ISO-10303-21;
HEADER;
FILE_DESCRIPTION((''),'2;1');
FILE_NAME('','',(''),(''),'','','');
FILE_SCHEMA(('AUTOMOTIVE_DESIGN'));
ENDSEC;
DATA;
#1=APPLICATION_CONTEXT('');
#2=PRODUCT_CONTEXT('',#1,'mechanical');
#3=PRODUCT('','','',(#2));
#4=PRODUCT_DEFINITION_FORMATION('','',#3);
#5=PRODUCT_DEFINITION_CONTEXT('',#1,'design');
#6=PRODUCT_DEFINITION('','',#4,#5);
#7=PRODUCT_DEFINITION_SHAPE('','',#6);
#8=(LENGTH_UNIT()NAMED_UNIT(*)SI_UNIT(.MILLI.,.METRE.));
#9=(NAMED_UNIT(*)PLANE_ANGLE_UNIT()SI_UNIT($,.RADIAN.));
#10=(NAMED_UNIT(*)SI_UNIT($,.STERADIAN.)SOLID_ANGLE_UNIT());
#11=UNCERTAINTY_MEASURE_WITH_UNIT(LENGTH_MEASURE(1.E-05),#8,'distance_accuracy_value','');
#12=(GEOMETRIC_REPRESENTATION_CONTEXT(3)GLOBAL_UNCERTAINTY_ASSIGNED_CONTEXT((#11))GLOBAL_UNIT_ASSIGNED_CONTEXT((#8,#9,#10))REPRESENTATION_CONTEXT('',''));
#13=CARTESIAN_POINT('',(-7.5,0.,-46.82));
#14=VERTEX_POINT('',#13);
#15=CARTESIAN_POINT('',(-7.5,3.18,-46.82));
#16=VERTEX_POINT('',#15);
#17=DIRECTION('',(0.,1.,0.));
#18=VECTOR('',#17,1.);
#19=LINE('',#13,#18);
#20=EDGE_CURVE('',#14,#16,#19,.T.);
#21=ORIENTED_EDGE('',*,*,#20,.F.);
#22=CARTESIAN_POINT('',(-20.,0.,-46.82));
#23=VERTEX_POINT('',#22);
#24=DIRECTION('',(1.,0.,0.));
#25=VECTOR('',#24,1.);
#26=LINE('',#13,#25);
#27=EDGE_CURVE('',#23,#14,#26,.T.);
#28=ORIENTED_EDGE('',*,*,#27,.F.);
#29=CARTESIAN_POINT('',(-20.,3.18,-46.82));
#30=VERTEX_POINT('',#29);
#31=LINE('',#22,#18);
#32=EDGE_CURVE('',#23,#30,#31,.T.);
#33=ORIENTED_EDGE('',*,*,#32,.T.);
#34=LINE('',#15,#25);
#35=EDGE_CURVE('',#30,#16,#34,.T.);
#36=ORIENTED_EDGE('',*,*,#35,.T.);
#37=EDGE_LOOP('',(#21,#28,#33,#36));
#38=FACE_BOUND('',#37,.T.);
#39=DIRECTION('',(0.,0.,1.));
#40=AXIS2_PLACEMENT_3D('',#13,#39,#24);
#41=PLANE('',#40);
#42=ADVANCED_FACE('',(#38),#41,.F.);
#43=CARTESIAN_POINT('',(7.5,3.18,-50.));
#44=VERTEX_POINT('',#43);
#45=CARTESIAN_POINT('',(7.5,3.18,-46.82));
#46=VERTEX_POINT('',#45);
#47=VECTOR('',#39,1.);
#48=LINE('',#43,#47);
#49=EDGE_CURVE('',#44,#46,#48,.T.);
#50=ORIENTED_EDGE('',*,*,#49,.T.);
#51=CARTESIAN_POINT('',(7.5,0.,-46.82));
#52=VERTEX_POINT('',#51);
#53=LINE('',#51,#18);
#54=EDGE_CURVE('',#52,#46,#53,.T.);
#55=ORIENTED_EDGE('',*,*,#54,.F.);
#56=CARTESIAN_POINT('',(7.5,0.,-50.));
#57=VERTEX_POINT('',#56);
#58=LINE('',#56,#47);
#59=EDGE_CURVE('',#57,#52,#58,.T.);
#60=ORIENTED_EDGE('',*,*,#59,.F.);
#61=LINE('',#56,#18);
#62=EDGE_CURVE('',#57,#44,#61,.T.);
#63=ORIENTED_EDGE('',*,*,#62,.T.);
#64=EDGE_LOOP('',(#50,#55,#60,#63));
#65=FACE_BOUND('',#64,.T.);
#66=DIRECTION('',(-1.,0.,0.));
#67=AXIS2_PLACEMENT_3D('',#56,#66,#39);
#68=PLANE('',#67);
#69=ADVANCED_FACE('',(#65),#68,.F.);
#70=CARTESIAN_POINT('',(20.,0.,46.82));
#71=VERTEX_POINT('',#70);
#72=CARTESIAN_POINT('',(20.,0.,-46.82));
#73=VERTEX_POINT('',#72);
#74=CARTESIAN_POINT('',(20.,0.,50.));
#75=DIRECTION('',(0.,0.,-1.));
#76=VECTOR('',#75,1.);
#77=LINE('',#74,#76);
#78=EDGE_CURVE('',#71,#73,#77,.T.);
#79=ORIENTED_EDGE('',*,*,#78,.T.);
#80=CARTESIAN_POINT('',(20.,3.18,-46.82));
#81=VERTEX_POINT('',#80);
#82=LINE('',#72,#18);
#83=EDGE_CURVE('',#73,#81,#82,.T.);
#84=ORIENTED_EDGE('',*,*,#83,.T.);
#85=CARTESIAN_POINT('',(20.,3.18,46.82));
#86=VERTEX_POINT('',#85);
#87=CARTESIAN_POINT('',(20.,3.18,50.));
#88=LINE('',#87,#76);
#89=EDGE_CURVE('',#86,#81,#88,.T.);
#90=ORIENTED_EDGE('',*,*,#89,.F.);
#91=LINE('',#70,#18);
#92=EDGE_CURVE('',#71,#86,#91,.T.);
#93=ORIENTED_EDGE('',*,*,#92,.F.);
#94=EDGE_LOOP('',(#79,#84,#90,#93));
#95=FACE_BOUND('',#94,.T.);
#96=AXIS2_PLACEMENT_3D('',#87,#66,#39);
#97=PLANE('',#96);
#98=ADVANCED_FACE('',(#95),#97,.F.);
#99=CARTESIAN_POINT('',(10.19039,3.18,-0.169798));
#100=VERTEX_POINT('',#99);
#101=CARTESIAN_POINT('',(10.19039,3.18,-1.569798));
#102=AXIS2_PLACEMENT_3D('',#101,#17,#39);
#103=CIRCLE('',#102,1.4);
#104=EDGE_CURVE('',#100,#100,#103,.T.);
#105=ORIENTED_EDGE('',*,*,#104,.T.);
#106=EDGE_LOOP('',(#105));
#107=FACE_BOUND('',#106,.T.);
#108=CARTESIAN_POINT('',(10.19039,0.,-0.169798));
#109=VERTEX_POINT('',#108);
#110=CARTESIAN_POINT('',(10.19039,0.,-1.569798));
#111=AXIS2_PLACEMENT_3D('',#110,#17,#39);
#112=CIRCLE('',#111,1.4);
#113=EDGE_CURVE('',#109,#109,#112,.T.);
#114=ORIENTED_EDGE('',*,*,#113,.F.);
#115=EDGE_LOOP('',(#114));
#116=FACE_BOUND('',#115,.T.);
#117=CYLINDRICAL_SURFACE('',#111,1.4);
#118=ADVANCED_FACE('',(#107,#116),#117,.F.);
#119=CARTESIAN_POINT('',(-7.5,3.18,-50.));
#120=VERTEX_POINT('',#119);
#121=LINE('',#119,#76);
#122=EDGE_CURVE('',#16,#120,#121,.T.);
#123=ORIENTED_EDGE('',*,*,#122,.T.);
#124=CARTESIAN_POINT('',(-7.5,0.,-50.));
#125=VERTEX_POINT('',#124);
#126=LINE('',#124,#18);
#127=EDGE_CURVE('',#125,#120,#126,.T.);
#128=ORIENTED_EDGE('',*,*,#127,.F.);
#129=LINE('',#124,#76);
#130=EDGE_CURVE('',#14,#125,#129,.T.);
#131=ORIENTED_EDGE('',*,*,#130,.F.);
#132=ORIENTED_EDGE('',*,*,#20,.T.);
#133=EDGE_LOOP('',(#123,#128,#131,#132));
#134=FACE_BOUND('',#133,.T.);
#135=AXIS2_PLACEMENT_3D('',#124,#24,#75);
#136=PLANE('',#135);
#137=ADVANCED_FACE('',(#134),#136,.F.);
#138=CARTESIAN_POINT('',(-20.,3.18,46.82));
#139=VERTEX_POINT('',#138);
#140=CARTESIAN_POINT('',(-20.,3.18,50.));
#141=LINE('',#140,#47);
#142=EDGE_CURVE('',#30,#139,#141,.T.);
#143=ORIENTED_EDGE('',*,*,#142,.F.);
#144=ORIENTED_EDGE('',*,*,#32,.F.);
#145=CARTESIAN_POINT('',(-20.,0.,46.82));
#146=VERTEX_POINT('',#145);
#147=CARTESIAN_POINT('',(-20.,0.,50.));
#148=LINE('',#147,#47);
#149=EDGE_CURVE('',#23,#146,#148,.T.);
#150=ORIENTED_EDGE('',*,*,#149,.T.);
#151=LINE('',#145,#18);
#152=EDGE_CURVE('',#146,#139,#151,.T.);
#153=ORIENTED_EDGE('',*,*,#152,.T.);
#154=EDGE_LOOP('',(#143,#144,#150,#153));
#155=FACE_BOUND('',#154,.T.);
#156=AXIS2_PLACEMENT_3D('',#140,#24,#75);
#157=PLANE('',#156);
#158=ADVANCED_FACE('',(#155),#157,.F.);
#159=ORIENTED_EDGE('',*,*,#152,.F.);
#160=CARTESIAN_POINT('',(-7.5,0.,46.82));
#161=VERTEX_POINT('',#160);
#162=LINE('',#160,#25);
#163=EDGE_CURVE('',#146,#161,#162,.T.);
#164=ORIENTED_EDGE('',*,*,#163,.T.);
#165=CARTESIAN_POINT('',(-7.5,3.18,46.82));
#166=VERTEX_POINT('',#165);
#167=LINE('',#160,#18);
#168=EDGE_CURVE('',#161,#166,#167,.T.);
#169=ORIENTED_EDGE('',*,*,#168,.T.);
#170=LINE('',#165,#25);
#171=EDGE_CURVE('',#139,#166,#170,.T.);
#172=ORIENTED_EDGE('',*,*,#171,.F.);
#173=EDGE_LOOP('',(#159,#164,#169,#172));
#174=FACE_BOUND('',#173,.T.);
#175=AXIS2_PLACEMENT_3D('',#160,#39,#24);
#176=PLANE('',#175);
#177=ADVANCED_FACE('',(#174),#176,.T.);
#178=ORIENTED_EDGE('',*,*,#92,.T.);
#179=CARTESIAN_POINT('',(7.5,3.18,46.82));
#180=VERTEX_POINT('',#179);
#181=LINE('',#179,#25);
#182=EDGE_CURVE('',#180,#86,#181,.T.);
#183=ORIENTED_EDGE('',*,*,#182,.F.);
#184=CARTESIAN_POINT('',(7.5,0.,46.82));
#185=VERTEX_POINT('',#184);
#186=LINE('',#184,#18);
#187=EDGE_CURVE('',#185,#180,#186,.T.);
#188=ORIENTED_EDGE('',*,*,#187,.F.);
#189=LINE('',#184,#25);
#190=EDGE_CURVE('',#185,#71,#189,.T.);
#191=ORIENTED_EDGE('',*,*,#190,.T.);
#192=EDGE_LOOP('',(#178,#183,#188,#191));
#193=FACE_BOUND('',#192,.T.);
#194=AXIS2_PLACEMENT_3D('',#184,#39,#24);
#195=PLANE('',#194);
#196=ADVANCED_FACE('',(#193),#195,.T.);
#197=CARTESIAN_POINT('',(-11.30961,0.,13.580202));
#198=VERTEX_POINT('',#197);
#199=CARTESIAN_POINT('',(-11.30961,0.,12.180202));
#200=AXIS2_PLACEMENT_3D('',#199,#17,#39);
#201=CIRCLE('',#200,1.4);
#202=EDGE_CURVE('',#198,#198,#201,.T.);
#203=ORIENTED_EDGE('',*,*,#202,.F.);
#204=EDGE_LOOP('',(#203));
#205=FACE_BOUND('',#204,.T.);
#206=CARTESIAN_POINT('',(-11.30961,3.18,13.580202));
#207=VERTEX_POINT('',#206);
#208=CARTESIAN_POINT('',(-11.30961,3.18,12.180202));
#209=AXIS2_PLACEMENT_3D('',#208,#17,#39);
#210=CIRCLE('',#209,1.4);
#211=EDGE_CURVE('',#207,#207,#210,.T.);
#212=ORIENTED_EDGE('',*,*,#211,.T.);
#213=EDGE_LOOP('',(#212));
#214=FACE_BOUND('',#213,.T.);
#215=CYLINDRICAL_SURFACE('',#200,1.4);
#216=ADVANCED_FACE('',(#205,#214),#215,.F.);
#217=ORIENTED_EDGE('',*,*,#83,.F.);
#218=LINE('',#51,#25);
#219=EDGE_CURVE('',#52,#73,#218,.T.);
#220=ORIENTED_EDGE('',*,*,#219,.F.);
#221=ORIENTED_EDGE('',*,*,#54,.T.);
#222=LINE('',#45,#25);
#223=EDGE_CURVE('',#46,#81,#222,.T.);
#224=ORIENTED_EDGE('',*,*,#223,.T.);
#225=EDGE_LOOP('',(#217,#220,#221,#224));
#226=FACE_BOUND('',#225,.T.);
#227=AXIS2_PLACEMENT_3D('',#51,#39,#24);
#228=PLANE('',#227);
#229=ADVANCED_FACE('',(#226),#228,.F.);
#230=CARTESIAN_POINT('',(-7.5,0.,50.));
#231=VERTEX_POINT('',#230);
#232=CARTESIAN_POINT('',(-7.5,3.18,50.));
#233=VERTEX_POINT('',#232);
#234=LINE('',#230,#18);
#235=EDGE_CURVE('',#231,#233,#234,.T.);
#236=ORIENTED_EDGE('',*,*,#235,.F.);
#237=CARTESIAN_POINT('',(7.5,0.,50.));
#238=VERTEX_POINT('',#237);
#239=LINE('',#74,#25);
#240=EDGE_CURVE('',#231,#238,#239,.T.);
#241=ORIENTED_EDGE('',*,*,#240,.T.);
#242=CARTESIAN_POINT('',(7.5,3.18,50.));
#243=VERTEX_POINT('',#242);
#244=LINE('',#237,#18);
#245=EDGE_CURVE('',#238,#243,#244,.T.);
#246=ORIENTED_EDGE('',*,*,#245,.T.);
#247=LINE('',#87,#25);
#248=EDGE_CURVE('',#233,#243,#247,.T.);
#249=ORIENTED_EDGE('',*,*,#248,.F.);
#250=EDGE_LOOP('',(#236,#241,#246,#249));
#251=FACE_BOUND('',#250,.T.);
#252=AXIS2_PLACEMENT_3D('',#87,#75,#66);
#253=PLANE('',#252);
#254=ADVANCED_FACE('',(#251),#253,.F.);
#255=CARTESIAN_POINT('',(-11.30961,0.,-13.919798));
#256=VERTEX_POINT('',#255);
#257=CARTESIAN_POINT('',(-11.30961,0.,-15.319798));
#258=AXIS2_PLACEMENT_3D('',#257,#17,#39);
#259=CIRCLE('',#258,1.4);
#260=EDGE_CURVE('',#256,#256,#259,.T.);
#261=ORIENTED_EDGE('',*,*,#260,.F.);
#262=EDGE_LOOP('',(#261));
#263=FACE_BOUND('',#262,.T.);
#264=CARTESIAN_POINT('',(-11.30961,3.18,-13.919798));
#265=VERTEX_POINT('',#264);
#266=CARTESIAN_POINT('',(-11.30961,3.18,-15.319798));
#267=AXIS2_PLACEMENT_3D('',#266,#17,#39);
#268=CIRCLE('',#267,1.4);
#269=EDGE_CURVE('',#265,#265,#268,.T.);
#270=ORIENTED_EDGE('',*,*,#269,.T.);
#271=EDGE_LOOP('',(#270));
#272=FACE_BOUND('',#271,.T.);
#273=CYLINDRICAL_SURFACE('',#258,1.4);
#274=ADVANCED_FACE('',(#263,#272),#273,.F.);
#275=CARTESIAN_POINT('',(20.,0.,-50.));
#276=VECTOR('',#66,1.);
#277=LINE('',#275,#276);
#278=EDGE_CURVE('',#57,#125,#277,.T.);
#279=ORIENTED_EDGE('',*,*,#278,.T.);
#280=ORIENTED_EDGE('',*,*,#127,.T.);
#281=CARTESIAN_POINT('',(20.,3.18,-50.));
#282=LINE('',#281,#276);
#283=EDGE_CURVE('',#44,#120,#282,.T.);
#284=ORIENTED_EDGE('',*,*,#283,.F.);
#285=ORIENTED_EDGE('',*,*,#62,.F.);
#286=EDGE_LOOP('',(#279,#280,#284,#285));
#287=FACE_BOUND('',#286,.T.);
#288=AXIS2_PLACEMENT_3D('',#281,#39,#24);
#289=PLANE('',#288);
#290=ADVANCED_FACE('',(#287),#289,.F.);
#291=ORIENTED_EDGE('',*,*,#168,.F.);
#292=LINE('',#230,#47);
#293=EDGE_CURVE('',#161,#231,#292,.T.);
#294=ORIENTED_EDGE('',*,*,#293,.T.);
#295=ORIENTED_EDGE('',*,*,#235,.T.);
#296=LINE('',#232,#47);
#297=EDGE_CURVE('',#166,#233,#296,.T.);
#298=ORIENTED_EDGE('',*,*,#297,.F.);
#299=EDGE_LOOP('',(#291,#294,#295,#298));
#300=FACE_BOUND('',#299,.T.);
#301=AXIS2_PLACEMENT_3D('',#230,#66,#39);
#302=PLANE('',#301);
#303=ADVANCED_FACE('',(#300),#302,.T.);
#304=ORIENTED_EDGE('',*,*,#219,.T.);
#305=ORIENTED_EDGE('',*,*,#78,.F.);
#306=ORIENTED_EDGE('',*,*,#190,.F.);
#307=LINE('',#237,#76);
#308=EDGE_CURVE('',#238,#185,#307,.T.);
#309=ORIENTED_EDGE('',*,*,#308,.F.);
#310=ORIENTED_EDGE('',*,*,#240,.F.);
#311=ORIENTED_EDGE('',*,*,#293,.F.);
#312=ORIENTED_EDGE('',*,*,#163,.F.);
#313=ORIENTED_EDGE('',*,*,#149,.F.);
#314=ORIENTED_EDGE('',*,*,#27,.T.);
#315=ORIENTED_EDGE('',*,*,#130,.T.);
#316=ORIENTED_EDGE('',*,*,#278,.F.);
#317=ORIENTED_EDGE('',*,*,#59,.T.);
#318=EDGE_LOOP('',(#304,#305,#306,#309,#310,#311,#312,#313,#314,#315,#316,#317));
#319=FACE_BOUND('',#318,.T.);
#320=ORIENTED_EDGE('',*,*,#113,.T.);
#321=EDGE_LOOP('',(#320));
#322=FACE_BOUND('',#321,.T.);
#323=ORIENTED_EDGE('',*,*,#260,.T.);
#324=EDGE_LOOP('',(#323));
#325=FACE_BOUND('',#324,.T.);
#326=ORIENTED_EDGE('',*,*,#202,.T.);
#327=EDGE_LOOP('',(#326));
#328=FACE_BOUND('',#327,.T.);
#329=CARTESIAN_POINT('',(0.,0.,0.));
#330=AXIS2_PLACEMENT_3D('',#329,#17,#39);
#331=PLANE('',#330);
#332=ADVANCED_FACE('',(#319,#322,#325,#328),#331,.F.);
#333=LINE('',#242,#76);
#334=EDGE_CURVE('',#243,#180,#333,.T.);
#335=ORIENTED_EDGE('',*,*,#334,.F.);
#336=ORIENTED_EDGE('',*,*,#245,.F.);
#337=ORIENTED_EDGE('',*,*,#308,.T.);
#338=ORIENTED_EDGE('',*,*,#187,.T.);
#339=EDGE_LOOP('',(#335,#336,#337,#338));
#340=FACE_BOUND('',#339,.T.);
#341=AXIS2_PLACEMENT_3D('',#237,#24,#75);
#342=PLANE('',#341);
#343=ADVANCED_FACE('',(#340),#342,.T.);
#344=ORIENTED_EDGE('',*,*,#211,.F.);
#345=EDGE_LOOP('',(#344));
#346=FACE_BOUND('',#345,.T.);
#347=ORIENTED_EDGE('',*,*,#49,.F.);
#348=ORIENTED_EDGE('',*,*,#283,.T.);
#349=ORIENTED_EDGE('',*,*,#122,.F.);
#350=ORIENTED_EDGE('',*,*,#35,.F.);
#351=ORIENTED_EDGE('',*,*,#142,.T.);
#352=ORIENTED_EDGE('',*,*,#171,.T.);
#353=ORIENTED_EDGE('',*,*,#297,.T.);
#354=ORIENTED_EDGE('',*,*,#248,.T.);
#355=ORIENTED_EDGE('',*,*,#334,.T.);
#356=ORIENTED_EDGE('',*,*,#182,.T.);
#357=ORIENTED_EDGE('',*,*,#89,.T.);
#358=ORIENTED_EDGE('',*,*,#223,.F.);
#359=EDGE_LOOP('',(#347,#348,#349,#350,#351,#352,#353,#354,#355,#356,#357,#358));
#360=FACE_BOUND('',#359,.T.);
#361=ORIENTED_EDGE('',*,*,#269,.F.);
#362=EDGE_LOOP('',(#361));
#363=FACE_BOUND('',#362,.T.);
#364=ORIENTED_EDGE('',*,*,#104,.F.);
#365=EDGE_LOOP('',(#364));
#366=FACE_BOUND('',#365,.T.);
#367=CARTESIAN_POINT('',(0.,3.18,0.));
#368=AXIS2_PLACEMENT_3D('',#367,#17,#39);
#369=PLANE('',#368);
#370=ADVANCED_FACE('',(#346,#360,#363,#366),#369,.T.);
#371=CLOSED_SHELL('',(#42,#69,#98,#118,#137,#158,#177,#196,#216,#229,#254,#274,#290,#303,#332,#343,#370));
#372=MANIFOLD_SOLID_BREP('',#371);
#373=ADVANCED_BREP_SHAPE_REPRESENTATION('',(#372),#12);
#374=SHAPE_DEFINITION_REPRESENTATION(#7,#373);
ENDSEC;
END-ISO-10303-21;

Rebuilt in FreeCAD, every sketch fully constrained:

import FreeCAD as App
import Part
import Sketcher

doc = App.newDocument("Part")
body = doc.addObject("PartDesign::Body", "Body")

sketch1 = body.newObject("Sketcher::SketchObject", "Sketch")
sketch1.AttachmentSupport = (doc.getObject("XZ_Plane"), [""])
sketch1.MapMode = "FlatFace"
sketch1.addGeometry([
    Part.LineSegment(App.Vector(-20, -50, 0), App.Vector(-20, 50, 0)),
    Part.LineSegment(App.Vector(-20, 50, 0), App.Vector(20, 50, 0)),
    Part.LineSegment(App.Vector(20, 50, 0), App.Vector(20, -50, 0)),
    Part.LineSegment(App.Vector(20, -50, 0), App.Vector(-20, -50, 0)),
], False)
sketch1.addConstraint([
    Sketcher.Constraint("Coincident", 0, 2, 1, 1),
    Sketcher.Constraint("Coincident", 1, 2, 2, 1),
    Sketcher.Constraint("Coincident", 2, 2, 3, 1),
    Sketcher.Constraint("Coincident", 3, 2, 0, 1),
    Sketcher.Constraint("Vertical", 0),
    Sketcher.Constraint("Horizontal", 1),
    Sketcher.Constraint("Vertical", 2),
    Sketcher.Constraint("Horizontal", 3),
    Sketcher.Constraint("Symmetric", 0, 2, 2, 2, -1, 1),
    Sketcher.Constraint("DistanceX", 1, 1, 1, 2, 40.0),
    Sketcher.Constraint("DistanceY", 0, 1, 0, 2, 100.0),
])
pad1 = body.newObject("PartDesign::Pad", "Pad")
pad1.Profile = sketch1
pad1.Length = 3.18
pad1.Reversed = True

sketch2 = body.newObject("Sketcher::SketchObject", "Sketch001")
sketch2.AttachmentSupport = (doc.getObject("XZ_Plane"), [""])
sketch2.MapMode = "FlatFace"
sketch2.AttachmentOffset = App.Placement(App.Vector(0, 0, -3.18), App.Rotation())
sketch2.addGeometry([
    Part.LineSegment(App.Vector(7.5, -50, 0), App.Vector(7.5, -46.8, 0)),
    Part.LineSegment(App.Vector(7.5, -46.8, 0), App.Vector(20, -46.8, 0)),
    Part.LineSegment(App.Vector(20, -46.8, 0), App.Vector(20, -50, 0)),
    Part.LineSegment(App.Vector(20, -50, 0), App.Vector(7.5, -50, 0)),
    Part.LineSegment(App.Vector(-20, -50, 0), App.Vector(-20, -46.8, 0)),
    Part.LineSegment(App.Vector(-20, -46.8, 0), App.Vector(-7.5, -46.8, 0)),
    Part.LineSegment(App.Vector(-7.5, -46.8, 0), App.Vector(-7.5, -50, 0)),
    Part.LineSegment(App.Vector(-7.5, -50, 0), App.Vector(-20, -50, 0)),
], False)
sketch2.addConstraint([
    Sketcher.Constraint("Coincident", 0, 2, 1, 1),
    Sketcher.Constraint("Coincident", 1, 2, 2, 1),
    Sketcher.Constraint("Coincident", 2, 2, 3, 1),
    Sketcher.Constraint("Coincident", 3, 2, 0, 1),
    Sketcher.Constraint("Coincident", 4, 2, 5, 1),
    Sketcher.Constraint("Coincident", 5, 2, 6, 1),
    Sketcher.Constraint("Coincident", 6, 2, 7, 1),
    Sketcher.Constraint("Coincident", 7, 2, 4, 1),
    Sketcher.Constraint("Vertical", 0),
    Sketcher.Constraint("Horizontal", 1),
    Sketcher.Constraint("Vertical", 2),
    Sketcher.Constraint("Horizontal", 3),
    Sketcher.Constraint("Vertical", 4),
    Sketcher.Constraint("Horizontal", 5),
    Sketcher.Constraint("Vertical", 6),
    Sketcher.Constraint("Horizontal", 7),
    Sketcher.Constraint("Symmetric", 1, 2, 4, 2, -2),
    Sketcher.Constraint("Symmetric", 3, 2, 6, 2, -2),
    Sketcher.Constraint("DistanceX", 1, 1, 1, 2, 12.5),
    Sketcher.Constraint("DistanceX", -1, 1, 1, 2, 20.0),
    Sketcher.Constraint("DistanceY", 2, 2, -1, 1, 50.0),
    Sketcher.Constraint("DistanceY", 0, 1, 0, 2, 3.18),
])
pocket1 = body.newObject("PartDesign::Pocket", "Pocket")
pocket1.Profile = sketch2
pocket1.Type = "ThroughAll"
pocket1.Reversed = True
doc.recompute()

mirrored = body.newObject("PartDesign::Mirrored", "Mirrored")
mirrored.Originals = [pocket1]
mirrored.MirrorPlane = (doc.getObject("XY_Plane"), [""])
body.Tip = mirrored

sketch3 = body.newObject("Sketcher::SketchObject", "Sketch002")
sketch3.AttachmentSupport = (doc.getObject("XZ_Plane"), [""])
sketch3.MapMode = "FlatFace"
sketch3.AttachmentOffset = App.Placement(App.Vector(0, 0, -3.18), App.Rotation())
sketch3.addGeometry([
    Part.Circle(App.Vector(-11.3, 12.2, 0), App.Vector(0, 0, 1), 1.4),
    Part.Circle(App.Vector(10.2, -1.6, 0), App.Vector(0, 0, 1), 1.4),
    Part.Circle(App.Vector(-11.3, -15.3, 0), App.Vector(0, 0, 1), 1.4),
], False)
sketch3.addConstraint([
    Sketcher.Constraint("Equal", 0, 1),
    Sketcher.Constraint("Equal", 1, 2),
    Sketcher.Constraint("Vertical", 0, 3, 2, 3),
    Sketcher.Constraint("Diameter", 0, 2.8),
    Sketcher.Constraint("DistanceX", 0, 3, 1, 3, 21.5),
    Sketcher.Constraint("DistanceY", 2, 3, 0, 3, 27.5),
    Sketcher.Constraint("DistanceY", 1, 3, 0, 3, 13.75),
    Sketcher.Constraint("DistanceX", 0, 3, -1, 1, 11.30961),
    Sketcher.Constraint("DistanceY", -1, 1, 0, 3, 12.180202),
])
pocket2 = body.newObject("PartDesign::Pocket", "Pocket001")
pocket2.Profile = sketch3
pocket2.Type = "ThroughAll"
pocket2.Reversed = True

doc.recompute()
